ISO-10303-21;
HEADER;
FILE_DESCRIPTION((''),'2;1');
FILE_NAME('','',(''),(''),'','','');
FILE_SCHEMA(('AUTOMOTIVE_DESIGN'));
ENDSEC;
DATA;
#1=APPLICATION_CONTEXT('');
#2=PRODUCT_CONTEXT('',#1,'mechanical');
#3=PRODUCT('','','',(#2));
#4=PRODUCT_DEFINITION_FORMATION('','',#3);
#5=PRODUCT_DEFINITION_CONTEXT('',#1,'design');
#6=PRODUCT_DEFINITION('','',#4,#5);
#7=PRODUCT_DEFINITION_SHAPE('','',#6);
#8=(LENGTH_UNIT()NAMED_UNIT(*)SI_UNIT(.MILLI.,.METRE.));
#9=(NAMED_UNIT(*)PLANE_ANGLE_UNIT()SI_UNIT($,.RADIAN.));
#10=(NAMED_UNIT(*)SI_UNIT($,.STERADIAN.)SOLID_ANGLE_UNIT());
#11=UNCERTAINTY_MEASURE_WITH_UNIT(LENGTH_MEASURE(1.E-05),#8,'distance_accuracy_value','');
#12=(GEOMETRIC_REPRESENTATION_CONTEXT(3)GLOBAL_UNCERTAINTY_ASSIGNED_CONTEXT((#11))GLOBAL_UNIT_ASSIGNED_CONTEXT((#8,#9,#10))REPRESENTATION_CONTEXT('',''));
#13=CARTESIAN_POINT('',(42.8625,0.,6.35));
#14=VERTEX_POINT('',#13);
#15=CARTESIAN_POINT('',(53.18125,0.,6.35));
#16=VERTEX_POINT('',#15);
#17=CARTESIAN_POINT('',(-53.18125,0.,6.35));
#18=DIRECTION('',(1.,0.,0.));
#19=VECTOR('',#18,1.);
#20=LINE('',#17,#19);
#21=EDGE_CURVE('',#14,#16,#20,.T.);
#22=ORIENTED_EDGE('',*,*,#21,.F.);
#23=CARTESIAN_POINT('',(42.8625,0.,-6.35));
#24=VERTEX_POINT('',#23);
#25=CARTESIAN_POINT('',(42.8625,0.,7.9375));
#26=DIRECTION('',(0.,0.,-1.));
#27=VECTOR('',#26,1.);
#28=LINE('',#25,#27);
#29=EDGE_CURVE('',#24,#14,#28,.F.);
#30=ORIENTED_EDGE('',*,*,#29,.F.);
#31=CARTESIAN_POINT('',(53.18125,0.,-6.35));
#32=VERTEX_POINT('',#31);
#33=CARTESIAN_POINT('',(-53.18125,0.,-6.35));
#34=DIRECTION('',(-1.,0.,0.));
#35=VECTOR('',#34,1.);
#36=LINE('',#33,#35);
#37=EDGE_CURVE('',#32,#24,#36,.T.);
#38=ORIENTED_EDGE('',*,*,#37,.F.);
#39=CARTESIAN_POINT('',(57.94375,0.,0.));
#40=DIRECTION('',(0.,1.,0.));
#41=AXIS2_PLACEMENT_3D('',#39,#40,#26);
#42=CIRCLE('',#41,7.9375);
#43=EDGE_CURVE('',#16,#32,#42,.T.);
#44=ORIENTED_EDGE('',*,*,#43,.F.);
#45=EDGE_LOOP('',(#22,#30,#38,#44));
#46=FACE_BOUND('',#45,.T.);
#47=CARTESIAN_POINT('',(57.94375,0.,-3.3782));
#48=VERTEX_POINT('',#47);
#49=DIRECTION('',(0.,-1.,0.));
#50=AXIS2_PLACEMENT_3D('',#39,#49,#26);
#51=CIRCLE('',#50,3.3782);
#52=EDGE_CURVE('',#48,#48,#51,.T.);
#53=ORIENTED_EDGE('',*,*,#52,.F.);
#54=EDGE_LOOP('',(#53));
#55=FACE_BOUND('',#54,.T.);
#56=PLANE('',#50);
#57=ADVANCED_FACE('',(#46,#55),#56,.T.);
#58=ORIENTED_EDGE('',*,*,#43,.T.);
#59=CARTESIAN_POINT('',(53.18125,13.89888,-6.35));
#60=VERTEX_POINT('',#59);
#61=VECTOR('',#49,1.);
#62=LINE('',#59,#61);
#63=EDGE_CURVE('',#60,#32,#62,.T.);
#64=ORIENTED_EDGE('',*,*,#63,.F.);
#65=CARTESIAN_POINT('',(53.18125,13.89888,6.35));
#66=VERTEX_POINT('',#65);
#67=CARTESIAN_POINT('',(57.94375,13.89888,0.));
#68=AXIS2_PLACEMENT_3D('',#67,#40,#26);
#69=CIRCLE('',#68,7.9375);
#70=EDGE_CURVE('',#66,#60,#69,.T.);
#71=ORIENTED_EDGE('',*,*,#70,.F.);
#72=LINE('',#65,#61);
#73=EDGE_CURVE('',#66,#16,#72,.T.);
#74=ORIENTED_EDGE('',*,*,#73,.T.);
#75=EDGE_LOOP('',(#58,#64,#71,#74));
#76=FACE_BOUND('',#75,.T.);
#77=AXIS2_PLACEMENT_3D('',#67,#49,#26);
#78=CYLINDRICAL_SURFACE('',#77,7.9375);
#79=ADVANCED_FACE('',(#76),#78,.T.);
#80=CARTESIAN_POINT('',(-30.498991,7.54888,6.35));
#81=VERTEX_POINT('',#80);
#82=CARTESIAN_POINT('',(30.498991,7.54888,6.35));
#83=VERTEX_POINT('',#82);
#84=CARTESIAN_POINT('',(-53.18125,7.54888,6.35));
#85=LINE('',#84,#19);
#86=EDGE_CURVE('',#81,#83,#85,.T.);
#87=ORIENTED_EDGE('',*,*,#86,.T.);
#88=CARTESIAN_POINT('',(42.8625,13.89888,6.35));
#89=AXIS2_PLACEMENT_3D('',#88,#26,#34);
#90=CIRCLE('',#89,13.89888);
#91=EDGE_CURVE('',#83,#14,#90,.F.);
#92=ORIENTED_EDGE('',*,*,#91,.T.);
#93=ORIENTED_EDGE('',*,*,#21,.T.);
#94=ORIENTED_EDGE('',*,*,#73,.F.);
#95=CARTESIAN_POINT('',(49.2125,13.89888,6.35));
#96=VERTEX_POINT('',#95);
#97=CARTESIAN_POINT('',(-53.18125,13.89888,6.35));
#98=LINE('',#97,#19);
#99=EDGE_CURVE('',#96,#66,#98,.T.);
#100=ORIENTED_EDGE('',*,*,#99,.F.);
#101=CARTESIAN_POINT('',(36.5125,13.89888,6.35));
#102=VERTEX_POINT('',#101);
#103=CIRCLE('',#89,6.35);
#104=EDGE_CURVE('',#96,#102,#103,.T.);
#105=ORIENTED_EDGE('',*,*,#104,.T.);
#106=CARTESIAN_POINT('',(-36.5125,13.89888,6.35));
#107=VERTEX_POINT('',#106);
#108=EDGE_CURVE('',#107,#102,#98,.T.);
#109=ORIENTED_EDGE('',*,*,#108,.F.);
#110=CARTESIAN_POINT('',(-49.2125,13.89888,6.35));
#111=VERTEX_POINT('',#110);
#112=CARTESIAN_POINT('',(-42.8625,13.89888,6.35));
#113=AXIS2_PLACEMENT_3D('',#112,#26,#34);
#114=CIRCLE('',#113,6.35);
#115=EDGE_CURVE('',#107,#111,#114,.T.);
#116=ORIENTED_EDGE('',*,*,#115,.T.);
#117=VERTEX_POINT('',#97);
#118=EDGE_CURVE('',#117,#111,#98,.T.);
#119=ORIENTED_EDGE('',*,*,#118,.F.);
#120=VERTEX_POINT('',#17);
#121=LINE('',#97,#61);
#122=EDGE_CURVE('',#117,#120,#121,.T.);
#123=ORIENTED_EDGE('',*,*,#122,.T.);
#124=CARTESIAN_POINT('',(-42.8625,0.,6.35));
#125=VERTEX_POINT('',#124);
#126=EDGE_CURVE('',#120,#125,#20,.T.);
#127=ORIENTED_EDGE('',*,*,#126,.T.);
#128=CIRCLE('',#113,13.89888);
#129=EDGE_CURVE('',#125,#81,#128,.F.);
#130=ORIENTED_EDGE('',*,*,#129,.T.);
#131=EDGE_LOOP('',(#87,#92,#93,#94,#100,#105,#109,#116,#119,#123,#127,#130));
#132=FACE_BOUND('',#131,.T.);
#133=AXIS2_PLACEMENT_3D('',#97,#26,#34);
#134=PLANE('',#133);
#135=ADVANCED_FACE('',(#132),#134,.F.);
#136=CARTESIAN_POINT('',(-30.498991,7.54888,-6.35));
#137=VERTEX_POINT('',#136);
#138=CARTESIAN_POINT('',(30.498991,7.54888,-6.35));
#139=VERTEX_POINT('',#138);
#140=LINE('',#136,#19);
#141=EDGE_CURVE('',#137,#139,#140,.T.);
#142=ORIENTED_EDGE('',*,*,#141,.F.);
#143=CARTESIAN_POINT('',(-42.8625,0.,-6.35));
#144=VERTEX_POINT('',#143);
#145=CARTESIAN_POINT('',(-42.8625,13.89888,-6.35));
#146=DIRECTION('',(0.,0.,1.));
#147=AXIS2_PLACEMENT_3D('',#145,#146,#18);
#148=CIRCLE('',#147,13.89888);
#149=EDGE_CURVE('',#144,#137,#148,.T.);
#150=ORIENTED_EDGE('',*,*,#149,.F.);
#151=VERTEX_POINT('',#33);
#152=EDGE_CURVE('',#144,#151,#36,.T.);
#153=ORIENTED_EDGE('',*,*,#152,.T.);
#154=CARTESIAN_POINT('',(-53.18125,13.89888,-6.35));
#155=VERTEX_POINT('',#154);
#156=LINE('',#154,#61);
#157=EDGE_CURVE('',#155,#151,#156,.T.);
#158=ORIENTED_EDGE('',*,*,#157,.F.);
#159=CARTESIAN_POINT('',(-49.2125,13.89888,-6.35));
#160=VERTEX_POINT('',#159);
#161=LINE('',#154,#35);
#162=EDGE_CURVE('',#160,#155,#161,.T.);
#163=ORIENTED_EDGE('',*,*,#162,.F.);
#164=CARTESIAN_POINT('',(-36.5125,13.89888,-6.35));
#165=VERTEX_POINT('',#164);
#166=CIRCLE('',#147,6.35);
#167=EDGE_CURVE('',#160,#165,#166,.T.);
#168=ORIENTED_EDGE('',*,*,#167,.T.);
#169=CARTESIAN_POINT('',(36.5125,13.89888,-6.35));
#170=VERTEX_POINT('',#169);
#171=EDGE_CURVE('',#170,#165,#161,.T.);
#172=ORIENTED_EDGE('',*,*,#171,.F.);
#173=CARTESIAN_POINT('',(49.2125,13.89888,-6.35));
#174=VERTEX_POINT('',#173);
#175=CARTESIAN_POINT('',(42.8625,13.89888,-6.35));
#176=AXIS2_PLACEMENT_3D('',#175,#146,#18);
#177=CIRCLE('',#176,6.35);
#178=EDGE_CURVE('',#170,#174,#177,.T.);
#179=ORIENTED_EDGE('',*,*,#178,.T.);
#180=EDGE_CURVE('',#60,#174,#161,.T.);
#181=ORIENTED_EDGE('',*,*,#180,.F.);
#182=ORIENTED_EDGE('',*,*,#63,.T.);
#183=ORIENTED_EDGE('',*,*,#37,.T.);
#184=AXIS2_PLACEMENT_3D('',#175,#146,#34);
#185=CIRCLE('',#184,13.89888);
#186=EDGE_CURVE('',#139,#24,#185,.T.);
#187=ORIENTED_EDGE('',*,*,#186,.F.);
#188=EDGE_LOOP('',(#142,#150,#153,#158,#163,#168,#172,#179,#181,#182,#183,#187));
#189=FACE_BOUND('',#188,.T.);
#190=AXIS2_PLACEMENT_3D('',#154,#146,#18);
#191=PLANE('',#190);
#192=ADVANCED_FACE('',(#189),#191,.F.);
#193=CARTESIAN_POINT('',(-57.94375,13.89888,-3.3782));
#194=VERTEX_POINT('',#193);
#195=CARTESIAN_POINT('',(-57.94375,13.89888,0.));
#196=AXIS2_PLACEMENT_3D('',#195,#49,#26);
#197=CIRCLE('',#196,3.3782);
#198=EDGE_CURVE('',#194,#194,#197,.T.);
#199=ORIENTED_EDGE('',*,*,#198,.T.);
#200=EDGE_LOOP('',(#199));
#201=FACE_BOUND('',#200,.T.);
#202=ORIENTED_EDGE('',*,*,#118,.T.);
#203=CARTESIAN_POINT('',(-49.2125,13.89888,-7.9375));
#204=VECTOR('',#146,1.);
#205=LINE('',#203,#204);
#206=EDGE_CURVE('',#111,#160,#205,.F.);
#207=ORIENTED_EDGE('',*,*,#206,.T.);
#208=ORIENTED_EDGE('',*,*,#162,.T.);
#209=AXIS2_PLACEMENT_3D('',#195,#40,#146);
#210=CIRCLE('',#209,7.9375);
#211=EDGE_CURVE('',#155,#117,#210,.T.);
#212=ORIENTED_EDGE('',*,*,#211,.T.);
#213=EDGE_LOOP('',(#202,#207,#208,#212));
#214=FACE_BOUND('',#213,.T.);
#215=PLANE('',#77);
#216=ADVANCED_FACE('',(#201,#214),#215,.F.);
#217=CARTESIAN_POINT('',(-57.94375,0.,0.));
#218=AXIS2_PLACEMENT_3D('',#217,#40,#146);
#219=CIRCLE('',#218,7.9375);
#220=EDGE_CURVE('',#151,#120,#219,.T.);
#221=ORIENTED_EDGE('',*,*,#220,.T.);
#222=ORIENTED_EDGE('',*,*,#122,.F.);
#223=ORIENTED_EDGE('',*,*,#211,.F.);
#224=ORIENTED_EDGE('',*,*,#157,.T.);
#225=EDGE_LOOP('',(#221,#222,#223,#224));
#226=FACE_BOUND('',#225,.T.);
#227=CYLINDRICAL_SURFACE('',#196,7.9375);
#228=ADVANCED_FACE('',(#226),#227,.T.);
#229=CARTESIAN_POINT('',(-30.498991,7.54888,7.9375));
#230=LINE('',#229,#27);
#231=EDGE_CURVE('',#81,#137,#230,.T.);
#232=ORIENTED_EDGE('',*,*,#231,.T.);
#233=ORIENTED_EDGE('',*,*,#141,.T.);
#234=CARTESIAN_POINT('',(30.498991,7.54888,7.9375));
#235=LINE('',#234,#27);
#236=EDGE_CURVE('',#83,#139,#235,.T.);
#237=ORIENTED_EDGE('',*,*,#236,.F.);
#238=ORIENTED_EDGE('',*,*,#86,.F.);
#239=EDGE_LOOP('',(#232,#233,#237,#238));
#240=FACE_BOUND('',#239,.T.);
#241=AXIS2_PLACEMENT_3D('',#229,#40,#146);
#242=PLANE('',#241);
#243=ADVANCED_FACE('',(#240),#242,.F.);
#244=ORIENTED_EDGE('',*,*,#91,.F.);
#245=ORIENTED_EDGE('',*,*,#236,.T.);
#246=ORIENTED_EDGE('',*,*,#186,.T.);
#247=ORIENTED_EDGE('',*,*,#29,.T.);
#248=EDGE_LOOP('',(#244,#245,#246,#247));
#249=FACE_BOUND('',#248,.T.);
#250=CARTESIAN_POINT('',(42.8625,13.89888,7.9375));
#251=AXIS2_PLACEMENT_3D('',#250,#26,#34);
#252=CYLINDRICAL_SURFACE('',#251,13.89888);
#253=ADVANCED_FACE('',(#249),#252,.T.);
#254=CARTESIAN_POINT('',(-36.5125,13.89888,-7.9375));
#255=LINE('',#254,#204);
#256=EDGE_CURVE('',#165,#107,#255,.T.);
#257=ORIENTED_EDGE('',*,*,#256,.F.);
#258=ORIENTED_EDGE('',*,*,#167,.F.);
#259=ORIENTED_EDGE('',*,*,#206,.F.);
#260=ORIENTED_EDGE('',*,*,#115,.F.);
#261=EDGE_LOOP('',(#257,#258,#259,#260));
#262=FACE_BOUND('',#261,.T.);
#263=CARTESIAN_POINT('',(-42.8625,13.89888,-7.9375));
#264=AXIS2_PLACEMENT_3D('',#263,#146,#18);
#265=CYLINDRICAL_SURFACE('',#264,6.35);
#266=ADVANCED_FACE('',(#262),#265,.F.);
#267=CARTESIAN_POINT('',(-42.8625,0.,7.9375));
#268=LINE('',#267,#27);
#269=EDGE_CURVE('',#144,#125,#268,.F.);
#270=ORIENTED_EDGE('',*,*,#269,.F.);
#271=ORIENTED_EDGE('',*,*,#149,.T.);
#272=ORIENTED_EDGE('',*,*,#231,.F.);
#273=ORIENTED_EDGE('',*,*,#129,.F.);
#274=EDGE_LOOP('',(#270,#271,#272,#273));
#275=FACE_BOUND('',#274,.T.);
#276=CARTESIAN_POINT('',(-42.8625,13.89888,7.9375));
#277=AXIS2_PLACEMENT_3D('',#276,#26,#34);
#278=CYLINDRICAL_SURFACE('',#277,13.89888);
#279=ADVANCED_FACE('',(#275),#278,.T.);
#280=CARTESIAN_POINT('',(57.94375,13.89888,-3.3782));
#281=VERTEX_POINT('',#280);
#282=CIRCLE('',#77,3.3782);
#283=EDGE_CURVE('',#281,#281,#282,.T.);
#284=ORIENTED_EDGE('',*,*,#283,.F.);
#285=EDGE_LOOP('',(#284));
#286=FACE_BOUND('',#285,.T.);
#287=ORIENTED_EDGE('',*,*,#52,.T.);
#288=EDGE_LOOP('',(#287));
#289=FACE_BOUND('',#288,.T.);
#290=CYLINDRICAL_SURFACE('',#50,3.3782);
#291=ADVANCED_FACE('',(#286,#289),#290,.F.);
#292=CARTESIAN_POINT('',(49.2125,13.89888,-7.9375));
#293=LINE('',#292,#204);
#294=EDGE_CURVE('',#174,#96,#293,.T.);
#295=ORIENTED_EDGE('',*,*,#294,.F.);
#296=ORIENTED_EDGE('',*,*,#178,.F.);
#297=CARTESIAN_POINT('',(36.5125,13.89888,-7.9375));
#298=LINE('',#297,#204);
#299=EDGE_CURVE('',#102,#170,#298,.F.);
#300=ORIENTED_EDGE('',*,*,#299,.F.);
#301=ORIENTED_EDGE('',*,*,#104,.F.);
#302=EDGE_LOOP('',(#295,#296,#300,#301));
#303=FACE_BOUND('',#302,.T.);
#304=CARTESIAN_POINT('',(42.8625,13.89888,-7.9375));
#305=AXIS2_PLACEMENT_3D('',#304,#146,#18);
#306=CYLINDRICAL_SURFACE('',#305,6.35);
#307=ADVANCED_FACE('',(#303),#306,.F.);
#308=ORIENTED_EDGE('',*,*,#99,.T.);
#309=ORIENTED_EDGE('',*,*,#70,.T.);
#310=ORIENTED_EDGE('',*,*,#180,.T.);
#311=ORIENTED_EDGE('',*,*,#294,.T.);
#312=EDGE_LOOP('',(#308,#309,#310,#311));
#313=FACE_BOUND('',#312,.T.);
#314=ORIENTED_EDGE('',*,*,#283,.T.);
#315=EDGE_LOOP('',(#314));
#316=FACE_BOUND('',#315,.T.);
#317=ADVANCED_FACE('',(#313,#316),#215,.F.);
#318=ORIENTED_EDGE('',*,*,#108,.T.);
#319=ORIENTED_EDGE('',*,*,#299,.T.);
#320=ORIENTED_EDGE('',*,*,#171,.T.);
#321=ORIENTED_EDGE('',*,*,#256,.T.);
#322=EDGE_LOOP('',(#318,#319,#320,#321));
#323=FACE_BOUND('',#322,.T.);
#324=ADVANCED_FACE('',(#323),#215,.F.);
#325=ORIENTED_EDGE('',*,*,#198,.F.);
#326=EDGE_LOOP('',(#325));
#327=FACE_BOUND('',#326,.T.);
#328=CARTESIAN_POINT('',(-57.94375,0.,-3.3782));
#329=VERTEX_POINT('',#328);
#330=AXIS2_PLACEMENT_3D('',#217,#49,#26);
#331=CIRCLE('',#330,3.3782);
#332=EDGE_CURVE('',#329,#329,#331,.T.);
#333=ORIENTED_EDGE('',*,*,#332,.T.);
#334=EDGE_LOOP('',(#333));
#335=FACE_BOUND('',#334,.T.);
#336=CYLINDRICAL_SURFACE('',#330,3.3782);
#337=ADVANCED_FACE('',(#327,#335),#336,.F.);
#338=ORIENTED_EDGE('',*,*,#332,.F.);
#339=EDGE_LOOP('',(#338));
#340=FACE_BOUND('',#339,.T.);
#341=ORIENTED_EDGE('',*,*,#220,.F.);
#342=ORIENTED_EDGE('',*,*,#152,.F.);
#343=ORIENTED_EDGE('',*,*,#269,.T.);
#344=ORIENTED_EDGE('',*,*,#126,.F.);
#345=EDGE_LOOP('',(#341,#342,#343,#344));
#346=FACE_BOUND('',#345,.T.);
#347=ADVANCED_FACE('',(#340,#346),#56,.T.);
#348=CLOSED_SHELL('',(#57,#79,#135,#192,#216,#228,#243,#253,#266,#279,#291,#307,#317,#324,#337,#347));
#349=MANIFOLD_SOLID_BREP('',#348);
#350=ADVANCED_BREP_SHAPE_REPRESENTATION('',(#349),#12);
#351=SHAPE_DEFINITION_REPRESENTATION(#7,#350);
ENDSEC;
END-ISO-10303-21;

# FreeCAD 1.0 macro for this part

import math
import FreeCAD as App
import Part
import Sketcher
from FreeCAD import Vector
Q = App.Units.Quantity

doc = App.newDocument("Part")
body = doc.addObject("PartDesign::Body", "Body")

sketch1 = doc.addObject("Sketcher::SketchObject", "Sketch")
body.addObject(sketch1)
sketch1.AttachmentSupport = (doc.XZ_Plane, [""])
sketch1.MapMode = "FlatFace"
sketch1.addGeometry(Part.LineSegment(Vector(53.18125, -6.35, 0), Vector(-53.18125, -6.35, 0)), False)
sketch1.addGeometry(Part.ArcOfCircle(Part.Circle(Vector(-57.94375, 0, 0), Vector(0, 0, 1), 7.9375), math.radians(53.130102), math.radians(306.869898)), False)
sketch1.addGeometry(Part.LineSegment(Vector(-53.18125, 6.35, 0), Vector(53.18125, 6.35, 0)), False)
sketch1.addGeometry(Part.ArcOfCircle(Part.Circle(Vector(57.94375, 0, 0), Vector(0, 0, 1), 7.9375), math.radians(-126.869898), math.radians(126.869898)), False)
sketch1.addConstraint(Sketcher.Constraint("Coincident", 0, 2, 1, 2))
sketch1.addConstraint(Sketcher.Constraint("Coincident", 1, 1, 2, 1))
sketch1.addConstraint(Sketcher.Constraint("Coincident", 2, 2, 3, 2))
sketch1.addConstraint(Sketcher.Constraint("Coincident", 3, 1, 0, 1))
sketch1.addConstraint(Sketcher.Constraint("Horizontal", 0))
sketch1.addConstraint(Sketcher.Constraint("Horizontal", 2))
sketch1.addConstraint(Sketcher.Constraint("Equal", 1, 3))
sketch1.addConstraint(Sketcher.Constraint("Symmetric", 1, 3, 3, 3, -1, 1))
sketch1.addConstraint(Sketcher.Constraint("Symmetric", 0, 2, 1, 1, -1))
sketch1.addConstraint(Sketcher.Constraint("Radius", 1, Q("0.3125 in")))
sketch1.addConstraint(Sketcher.Constraint("DistanceY", 0, 2, 1, 1, Q("0.5 in")))
sketch1.addConstraint(Sketcher.Constraint("DistanceX", 0, 2, 0, 1, Q("4.1875 in")))
pad1 = doc.addObject("PartDesign::Pad", "Pad")
body.addObject(pad1)
pad1.Profile = sketch1
pad1.Length = Q("0.5472 in")
pad1.Reversed = True

sketch2 = doc.addObject("Sketcher::SketchObject", "Sketch001")
body.addObject(sketch2)
sketch2.AttachmentSupport = (doc.XY_Plane, [""])
sketch2.MapMode = "FlatFace"
sketch2.AttachmentOffset = App.Placement(Vector(0, 0, 0.25 * 25.4), App.Rotation())
sketch2.addGeometry(Part.LineSegment(Vector(-36.5125, 13.89888, 0), Vector(-49.2125, 13.89888, 0)), False)
sketch2.addGeometry(Part.ArcOfCircle(Part.Circle(Vector(-42.8625, 13.89888, 0), Vector(0, 0, 1), 6.35), math.radians(180), math.radians(360)), False)
sketch2.addGeometry(Part.LineSegment(Vector(49.2125, 13.89888, 0), Vector(36.5125, 13.89888, 0)), False)
sketch2.addGeometry(Part.ArcOfCircle(Part.Circle(Vector(42.8625, 13.89888, 0), Vector(0, 0, 1), 6.35), math.radians(180), math.radians(360)), False)
sketch2.addConstraint(Sketcher.Constraint("Coincident", 0, 1, 1, 2))
sketch2.addConstraint(Sketcher.Constraint("Coincident", 1, 1, 0, 2))
sketch2.addConstraint(Sketcher.Constraint("Coincident", 2, 1, 3, 2))
sketch2.addConstraint(Sketcher.Constraint("Coincident", 3, 1, 2, 2))
sketch2.addConstraint(Sketcher.Constraint("Horizontal", 0))
sketch2.addConstraint(Sketcher.Constraint("Horizontal", 2))
sketch2.addConstraint(Sketcher.Constraint("Equal", 1, 3))
sketch2.addConstraint(Sketcher.Constraint("Symmetric", 1, 3, 3, 3, -2))
sketch2.addConstraint(Sketcher.Constraint("Horizontal", 3, 3, 0, 1))
sketch2.addConstraint(Sketcher.Constraint("Horizontal", 1, 1, 2, 1))
sketch2.addConstraint(Sketcher.Constraint("Radius", 1, Q("0.25 in")))
sketch2.addConstraint(Sketcher.Constraint("DistanceX", 1, 3, -1, 1, Q("1.6875 in")))
sketch2.addConstraint(Sketcher.Constraint("DistanceY", -1, 1, 1, 3, Q("0.5472 in")))
pocket1 = doc.addObject("PartDesign::Pocket", "Pocket")
body.addObject(pocket1)
pocket1.Profile = sketch2
pocket1.Type = "ThroughAll"
pocket1.Midplane = True

sketch3 = doc.addObject("Sketcher::SketchObject", "Sketch002")
body.addObject(sketch3)
sketch3.AttachmentSupport = (doc.XY_Plane, [""])
sketch3.MapMode = "FlatFace"
sketch3.AttachmentOffset = App.Placement(Vector(0, 0, -0.25 * 25.4), App.Rotation())
sketch3.addGeometry(Part.LineSegment(Vector(-30.498991, 7.54888, 0), Vector(30.498991, 7.54888, 0)), False)
sketch3.addGeometry(Part.ArcOfCircle(Part.Circle(Vector(42.8625, 13.89888, 0), Vector(0, 0, 1), 13.89888), math.radians(-152.814595), math.radians(-90)), False)
sketch3.addGeometry(Part.LineSegment(Vector(42.8625, 0, 0), Vector(-42.8625, 0, 0)), False)
sketch3.addGeometry(Part.ArcOfCircle(Part.Circle(Vector(-42.8625, 13.89888, 0), Vector(0, 0, 1), 13.89888), math.radians(-90), math.radians(-27.185405)), False)
sketch3.addConstraint(Sketcher.Constraint("Coincident", 0, 2, 1, 1))
sketch3.addConstraint(Sketcher.Constraint("Tangent", 1, 2, 2, 1))
sketch3.addConstraint(Sketcher.Constraint("Tangent", 2, 2, 3, 1))
sketch3.addConstraint(Sketcher.Constraint("Coincident", 3, 2, 0, 1))
sketch3.addConstraint(Sketcher.Constraint("Horizontal", 0))
sketch3.addConstraint(Sketcher.Constraint("Horizontal", 2))
sketch3.addConstraint(Sketcher.Constraint("Equal", 1, 3))
sketch3.addConstraint(Sketcher.Constraint("Symmetric", 1, 2, 2, 2, -1, 1))
sketch3.addConstraint(Sketcher.Constraint("Radius", 1, Q("0.5472 in")))
sketch3.addConstraint(Sketcher.Constraint("DistanceX", 2, 2, 2, 1, Q("3.375 in")))
sketch3.addConstraint(Sketcher.Constraint("DistanceY", 0, 2, 1, 3, Q("0.25 in")))
pocket2 = doc.addObject("PartDesign::Pocket", "Pocket001")
body.addObject(pocket2)
pocket2.Profile = sketch3
pocket2.Type = "ThroughAll"
pocket2.Reversed = True

sketch4 = doc.addObject("Sketcher::SketchObject", "Sketch003")
body.addObject(sketch4)
sketch4.AttachmentSupport = (doc.XZ_Plane, [""])
sketch4.MapMode = "FlatFace"
sketch4.addGeometry(Part.Circle(Vector(-57.94375, 0, 0), Vector(0, 0, 1), 3.3782), False)
sketch4.addGeometry(Part.Circle(Vector(57.94375, 0, 0), Vector(0, 0, 1), 3.3782), False)
sketch4.addConstraint(Sketcher.Constraint("Equal", 0, 1))
sketch4.addConstraint(Sketcher.Constraint("Symmetric", 0, 3, 1, 3, -1, 1))
sketch4.addConstraint(Sketcher.Constraint("PointOnObject", 0, 3, -1))
sketch4.addConstraint(Sketcher.Constraint("Diameter", 0, Q("0.266 in")))
sketch4.addConstraint(Sketcher.Constraint("DistanceX", 0, 3, -1, 1, Q("2.28125 in")))
doc.recompute()
hole = doc.addObject("PartDesign::Hole", "Hole")
body.addObject(hole)
hole.Profile = sketch4
hole.ThreadType = "None"
hole.Diameter = Q("0.266 in")
hole.DepthType = "ThroughAll"

doc.recompute()
